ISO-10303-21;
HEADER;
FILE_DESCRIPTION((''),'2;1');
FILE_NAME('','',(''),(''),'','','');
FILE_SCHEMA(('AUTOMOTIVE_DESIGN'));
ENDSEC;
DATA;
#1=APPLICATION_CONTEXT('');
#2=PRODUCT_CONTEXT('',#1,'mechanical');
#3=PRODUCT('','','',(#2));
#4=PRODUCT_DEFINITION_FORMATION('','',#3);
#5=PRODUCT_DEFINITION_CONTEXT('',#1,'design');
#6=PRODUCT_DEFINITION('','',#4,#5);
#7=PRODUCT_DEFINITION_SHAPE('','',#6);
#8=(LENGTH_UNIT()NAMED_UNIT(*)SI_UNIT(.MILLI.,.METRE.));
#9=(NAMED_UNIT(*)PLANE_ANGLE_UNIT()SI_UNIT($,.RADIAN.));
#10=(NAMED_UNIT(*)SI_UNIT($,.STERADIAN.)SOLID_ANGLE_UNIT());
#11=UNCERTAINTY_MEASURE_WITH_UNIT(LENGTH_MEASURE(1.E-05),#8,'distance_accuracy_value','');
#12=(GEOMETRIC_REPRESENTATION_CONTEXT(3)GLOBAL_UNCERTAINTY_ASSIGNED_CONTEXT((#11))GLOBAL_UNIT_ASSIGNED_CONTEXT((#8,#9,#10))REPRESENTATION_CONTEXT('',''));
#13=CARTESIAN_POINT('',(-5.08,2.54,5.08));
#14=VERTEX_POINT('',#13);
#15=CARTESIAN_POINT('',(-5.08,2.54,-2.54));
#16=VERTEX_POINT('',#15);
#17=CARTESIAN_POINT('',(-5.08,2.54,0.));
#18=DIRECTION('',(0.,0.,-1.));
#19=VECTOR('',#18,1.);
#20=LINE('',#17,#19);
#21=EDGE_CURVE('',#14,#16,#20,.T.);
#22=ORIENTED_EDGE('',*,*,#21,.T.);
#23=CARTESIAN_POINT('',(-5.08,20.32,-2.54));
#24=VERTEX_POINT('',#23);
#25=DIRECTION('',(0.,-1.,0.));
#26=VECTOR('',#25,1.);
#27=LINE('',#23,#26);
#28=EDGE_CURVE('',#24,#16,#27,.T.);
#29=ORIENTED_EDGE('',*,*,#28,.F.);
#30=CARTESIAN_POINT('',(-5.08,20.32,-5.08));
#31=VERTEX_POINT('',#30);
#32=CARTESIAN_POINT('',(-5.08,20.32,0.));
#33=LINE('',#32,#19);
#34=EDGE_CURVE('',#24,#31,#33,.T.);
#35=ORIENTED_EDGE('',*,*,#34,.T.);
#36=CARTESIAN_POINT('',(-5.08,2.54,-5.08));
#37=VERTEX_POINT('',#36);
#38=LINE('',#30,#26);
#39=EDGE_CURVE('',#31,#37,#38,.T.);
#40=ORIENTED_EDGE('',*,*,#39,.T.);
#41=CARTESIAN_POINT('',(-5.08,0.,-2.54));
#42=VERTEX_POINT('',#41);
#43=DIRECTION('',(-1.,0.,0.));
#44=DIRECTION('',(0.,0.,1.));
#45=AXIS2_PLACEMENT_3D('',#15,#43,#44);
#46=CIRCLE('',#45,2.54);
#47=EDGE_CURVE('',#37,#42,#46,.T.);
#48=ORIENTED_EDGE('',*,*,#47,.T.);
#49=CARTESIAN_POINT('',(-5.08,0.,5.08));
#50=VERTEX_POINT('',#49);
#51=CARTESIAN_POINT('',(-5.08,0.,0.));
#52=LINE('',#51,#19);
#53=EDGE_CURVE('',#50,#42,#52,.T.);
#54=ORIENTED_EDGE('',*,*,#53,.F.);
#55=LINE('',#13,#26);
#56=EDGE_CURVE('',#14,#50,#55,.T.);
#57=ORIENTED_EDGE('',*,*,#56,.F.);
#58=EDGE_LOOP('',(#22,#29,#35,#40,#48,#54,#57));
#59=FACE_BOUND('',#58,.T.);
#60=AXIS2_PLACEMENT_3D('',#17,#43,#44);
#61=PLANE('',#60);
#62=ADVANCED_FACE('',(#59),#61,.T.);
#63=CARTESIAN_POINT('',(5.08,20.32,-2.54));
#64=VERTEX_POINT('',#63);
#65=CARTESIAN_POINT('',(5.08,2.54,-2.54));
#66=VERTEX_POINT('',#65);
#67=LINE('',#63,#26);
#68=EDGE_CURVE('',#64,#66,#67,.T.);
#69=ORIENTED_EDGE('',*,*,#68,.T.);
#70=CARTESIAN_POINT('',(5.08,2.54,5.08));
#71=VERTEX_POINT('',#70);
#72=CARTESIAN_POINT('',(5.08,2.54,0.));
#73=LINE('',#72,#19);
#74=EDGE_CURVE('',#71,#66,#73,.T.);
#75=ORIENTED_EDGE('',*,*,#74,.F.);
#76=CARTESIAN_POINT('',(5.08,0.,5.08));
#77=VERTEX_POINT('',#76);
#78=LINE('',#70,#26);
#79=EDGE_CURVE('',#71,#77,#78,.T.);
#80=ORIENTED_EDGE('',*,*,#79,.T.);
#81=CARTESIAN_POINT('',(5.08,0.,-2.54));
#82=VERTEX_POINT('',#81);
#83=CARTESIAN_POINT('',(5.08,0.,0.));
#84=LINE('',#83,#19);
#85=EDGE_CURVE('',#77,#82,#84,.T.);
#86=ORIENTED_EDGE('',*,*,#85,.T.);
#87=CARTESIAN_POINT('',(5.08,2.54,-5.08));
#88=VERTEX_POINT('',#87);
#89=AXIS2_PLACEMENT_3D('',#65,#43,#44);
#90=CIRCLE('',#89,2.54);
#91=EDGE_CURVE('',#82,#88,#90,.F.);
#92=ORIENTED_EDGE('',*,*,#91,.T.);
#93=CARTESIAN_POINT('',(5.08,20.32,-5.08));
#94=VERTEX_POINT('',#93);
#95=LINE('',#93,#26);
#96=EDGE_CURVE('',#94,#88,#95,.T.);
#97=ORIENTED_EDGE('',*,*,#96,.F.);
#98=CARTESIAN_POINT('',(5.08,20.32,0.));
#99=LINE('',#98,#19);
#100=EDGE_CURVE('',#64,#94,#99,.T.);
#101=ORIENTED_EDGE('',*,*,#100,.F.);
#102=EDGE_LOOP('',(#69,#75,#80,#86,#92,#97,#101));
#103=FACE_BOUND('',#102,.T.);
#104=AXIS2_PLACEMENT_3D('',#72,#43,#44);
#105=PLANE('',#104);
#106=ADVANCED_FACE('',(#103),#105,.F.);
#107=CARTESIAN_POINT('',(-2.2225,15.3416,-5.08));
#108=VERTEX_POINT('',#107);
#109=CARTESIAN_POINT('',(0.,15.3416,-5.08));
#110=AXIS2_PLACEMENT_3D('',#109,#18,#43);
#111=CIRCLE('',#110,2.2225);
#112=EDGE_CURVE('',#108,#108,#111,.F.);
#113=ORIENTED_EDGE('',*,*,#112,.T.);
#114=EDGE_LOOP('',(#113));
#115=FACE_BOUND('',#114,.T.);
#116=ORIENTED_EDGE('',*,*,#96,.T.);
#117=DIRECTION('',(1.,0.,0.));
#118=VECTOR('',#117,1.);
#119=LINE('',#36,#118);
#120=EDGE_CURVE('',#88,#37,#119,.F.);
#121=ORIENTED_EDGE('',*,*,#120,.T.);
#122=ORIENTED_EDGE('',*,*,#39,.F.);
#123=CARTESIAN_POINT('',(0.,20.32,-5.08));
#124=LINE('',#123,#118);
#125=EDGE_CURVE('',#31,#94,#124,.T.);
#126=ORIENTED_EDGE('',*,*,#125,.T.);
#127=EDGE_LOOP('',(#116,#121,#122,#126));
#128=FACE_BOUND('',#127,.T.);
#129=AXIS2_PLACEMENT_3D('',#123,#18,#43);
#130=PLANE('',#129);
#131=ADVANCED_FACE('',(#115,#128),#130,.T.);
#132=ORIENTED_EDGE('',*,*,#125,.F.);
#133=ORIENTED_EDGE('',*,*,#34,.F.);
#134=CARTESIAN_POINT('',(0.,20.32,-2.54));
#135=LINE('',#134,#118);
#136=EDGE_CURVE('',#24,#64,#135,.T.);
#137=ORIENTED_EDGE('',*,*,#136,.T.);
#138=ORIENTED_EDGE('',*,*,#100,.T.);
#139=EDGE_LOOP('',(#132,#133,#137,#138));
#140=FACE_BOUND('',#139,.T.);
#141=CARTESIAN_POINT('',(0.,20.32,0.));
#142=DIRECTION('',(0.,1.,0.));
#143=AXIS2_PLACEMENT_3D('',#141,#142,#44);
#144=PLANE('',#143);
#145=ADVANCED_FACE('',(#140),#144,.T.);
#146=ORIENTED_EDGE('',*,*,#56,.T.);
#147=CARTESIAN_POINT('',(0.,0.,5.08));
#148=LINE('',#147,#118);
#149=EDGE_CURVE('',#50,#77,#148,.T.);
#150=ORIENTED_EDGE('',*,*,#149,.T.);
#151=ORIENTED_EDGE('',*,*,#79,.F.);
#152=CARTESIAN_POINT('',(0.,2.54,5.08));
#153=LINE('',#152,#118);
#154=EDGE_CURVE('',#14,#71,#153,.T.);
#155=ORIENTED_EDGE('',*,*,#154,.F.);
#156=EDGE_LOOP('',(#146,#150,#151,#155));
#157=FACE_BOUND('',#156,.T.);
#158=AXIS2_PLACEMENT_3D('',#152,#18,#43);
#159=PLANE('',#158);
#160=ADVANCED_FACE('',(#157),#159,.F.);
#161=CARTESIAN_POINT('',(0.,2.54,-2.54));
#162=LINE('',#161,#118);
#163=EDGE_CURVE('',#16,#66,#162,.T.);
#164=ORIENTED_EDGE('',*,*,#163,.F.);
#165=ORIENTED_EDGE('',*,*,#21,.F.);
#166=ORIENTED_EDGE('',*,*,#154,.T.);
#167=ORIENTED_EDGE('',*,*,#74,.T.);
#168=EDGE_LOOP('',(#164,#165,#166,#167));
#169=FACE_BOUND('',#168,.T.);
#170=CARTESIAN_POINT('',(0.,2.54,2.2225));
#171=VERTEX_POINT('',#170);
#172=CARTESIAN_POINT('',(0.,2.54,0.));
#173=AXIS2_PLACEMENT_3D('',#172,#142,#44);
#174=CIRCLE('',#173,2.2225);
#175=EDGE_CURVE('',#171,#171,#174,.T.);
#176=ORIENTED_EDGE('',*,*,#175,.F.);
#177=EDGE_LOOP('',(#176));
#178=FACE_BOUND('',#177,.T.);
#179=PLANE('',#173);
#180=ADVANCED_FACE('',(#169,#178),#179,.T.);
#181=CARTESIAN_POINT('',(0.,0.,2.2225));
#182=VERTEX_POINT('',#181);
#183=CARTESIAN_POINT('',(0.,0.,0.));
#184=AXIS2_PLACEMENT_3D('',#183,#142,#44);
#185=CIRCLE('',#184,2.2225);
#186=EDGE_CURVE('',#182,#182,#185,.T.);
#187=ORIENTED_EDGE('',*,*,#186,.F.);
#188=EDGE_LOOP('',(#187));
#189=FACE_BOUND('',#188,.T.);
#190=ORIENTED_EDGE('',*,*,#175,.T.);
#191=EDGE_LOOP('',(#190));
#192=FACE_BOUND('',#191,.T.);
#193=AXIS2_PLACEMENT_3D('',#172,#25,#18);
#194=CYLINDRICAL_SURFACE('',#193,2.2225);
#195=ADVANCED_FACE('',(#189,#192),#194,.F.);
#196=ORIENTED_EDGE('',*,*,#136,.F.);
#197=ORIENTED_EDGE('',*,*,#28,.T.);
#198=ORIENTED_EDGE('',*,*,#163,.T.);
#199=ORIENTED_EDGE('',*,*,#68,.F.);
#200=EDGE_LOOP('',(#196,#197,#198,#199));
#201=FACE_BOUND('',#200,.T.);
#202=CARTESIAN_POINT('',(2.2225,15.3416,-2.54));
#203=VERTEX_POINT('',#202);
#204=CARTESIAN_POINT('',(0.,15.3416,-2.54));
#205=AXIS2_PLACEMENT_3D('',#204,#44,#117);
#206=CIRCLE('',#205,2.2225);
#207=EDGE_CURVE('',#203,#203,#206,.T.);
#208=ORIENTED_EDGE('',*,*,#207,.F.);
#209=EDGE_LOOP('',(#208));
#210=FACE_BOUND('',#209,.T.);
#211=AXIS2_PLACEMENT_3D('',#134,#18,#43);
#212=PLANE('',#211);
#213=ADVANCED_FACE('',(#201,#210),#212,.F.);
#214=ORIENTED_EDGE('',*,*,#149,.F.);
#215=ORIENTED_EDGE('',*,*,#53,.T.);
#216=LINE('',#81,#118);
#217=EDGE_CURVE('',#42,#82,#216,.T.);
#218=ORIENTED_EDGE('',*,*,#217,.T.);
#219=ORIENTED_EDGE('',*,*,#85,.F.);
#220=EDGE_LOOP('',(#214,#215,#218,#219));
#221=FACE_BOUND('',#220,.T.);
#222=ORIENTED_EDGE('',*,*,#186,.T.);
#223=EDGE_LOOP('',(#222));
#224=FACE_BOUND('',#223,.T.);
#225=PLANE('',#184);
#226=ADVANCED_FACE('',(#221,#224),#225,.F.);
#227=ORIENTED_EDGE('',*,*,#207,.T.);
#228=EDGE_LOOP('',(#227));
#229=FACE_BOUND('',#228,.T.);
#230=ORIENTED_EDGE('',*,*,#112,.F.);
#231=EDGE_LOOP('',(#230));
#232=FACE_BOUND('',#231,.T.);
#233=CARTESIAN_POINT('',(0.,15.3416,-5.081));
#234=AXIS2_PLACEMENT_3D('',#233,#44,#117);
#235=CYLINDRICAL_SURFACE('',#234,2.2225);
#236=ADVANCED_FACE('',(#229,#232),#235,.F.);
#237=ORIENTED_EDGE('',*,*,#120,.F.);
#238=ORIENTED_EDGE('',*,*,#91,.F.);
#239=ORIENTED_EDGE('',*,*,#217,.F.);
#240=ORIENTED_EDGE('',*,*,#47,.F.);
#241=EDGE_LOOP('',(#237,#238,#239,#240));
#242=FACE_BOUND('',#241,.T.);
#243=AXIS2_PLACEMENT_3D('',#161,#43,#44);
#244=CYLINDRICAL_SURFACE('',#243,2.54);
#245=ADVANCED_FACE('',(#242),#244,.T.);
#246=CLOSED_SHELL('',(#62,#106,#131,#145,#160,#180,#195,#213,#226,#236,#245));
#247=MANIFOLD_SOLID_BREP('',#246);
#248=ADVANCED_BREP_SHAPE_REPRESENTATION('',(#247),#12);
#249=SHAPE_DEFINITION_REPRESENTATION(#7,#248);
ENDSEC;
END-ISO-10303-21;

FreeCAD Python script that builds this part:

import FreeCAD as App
import Part
import Sketcher
Q = App.Units.Quantity


def edges_at(feature, points):
    """Names of the edges that pass closest to the given points."""
    edges = feature.Shape.Edges
    near = lambda p: min(range(len(edges)), key=lambda i: edges[i].distToShape(Part.Vertex(*p))[0])
    return sorted({f"Edge{near(p) + 1}" for p in points})

doc = App.newDocument("Part")
body = doc.addObject("PartDesign::Body", "Body")

# Sketch on XZ plane
sketch1 = doc.addObject("Sketcher::SketchObject", "Sketch")
body.addObject(sketch1)
sketch1.AttachmentSupport = (doc.XZ_Plane, [""])
sketch1.MapMode = "FlatFace"
sketch1.addGeometry([
    Part.LineSegment(App.Vector(-5.1, -2.5, 0), App.Vector(-5.1, 5.1, 0)),  # 0
    Part.LineSegment(App.Vector(-5.1, 5.1, 0), App.Vector(5.1, 5.1, 0)),  # 1
    Part.LineSegment(App.Vector(5.1, 5.1, 0), App.Vector(5.1, -2.5, 0)),  # 2
    Part.LineSegment(App.Vector(5.1, -2.5, 0), App.Vector(-5.1, -2.5, 0)),  # 3
    Part.Circle(App.Vector(0, 0, 0), App.Vector(0, 0, 1), 2.2),  # 4
], False)
sketch1.addConstraint([
    Sketcher.Constraint("Coincident", 0, 2, 1, 1),
    Sketcher.Constraint("Coincident", 1, 2, 2, 1),
    Sketcher.Constraint("Coincident", 2, 2, 3, 1),
    Sketcher.Constraint("Coincident", 3, 2, 0, 1),
    Sketcher.Constraint("Vertical", 0),
    Sketcher.Constraint("Horizontal", 1),
    Sketcher.Constraint("Vertical", 2),
    Sketcher.Constraint("Horizontal", 3),
    Sketcher.Constraint("Coincident", 4, 3, -1, 1),
    Sketcher.Constraint("Diameter", 4, Q("0.175 in")),
    Sketcher.Constraint("DistanceX", 1, 1, 1, 2, Q("0.4 in")),
    Sketcher.Constraint("DistanceY", 0, 1, 0, 2, Q("0.3 in")),
    Sketcher.Constraint("DistanceX", 0, 2, -1, 1, Q("0.2 in")),
    Sketcher.Constraint("DistanceY", -1, 1, 0, 2, Q("0.2 in")),
])
pad1 = doc.addObject("PartDesign::Pad", "Pad")
body.addObject(pad1)
pad1.Profile = sketch1
pad1.Length = Q("0.1 in")
pad1.Reversed = True

# Sketch on XZ plane
sketch2 = doc.addObject("Sketcher::SketchObject", "Sketch001")
body.addObject(sketch2)
sketch2.AttachmentSupport = (doc.XZ_Plane, [""])
sketch2.MapMode = "FlatFace"
sketch2.addGeometry([
    Part.LineSegment(App.Vector(-5.1, -5.1, 0), App.Vector(-5.1, -2.5, 0)),
    Part.LineSegment(App.Vector(-5.1, -2.5, 0), App.Vector(5.1, -2.5, 0)),
    Part.LineSegment(App.Vector(5.1, -2.5, 0), App.Vector(5.1, -5.1, 0)),
    Part.LineSegment(App.Vector(5.1, -5.1, 0), App.Vector(-5.1, -5.1, 0)),
], False)
sketch2.addConstraint([
    Sketcher.Constraint("Coincident", 0, 2, 1, 1),
    Sketcher.Constraint("Coincident", 1, 2, 2, 1),
    Sketcher.Constraint("Coincident", 2, 2, 3, 1),
    Sketcher.Constraint("Coincident", 3, 2, 0, 1),
    Sketcher.Constraint("Vertical", 0),
    Sketcher.Constraint("Horizontal", 1),
    Sketcher.Constraint("Vertical", 2),
    Sketcher.Constraint("Horizontal", 3),
    Sketcher.Constraint("DistanceX", 1, 1, 1, 2, Q("0.4 in")),
    Sketcher.Constraint("DistanceY", 0, 1, 0, 2, Q("0.1 in")),
    Sketcher.Constraint("DistanceX", 0, 2, -1, 1, Q("0.2 in")),
    Sketcher.Constraint("DistanceY", 0, 2, -1, 1, Q("0.1 in")),
])
pad2 = doc.addObject("PartDesign::Pad", "Pad001")
body.addObject(pad2)
pad2.Profile = sketch2
pad2.Length = Q("0.8 in")
pad2.Reversed = True
doc.recompute()

fillet = doc.addObject("PartDesign::Fillet", "Fillet")
body.addObject(fillet)
fillet.Base = (pad2, edges_at(pad2, [(0, 0, -5.08)]))
fillet.Radius = Q("0.1 in")

# Sketch on XY plane
sketch3 = doc.addObject("Sketcher::SketchObject", "Sketch002")
body.addObject(sketch3)
sketch3.AttachmentSupport = (doc.XY_Plane, [""])
sketch3.MapMode = "FlatFace"
sketch3.AttachmentOffset = App.Placement(App.Vector(0, 0, -0.1 * 25.4), App.Rotation())
sketch3.addGeometry(Part.Circle(App.Vector(0, 15.3, 0), App.Vector(0, 0, 1), 2.2), False)
sketch3.addConstraint([
    Sketcher.Constraint("PointOnObject", 0, 3, -2),
    Sketcher.Constraint("Diameter", 0, Q("0.175 in")),
    Sketcher.Constraint("DistanceY", -1, 1, 0, 3, Q("0.604 in")),
])
pocket1 = doc.addObject("PartDesign::Pocket", "Pocket")
body.addObject(pocket1)
pocket1.Profile = sketch3
pocket1.Type = "UpToFirst"

doc.recompute()
